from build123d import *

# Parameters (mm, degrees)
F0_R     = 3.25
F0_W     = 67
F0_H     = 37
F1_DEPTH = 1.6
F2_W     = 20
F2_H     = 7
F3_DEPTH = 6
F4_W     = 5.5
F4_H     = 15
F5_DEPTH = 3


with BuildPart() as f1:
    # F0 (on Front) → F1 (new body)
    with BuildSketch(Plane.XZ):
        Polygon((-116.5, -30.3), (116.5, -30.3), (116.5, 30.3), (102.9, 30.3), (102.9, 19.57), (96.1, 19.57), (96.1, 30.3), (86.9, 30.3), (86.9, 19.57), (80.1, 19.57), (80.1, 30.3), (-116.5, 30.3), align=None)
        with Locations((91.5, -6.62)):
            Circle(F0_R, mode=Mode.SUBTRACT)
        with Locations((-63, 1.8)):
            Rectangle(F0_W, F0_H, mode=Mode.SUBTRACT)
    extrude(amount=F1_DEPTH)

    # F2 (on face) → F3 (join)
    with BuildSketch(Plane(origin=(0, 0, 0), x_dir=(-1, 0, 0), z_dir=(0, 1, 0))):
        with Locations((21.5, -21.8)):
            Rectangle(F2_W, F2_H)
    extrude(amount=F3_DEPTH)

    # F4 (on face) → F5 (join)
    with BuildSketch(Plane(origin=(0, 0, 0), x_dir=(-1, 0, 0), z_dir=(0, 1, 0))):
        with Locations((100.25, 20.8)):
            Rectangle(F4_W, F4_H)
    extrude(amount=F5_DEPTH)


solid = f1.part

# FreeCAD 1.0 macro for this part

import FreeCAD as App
import Part
import Sketcher
from FreeCAD import Vector
Q = App.Units.Quantity


def add_polygon(sketch, points):
    """Adds a closed chain of lines whose ends are joined by coincident constraints."""
    first, n = sketch.GeometryCount, len(points)
    for a, b in zip(points, points[1:] + points[:1]):
        sketch.addGeometry(Part.LineSegment(App.Vector(*a, 0), App.Vector(*b, 0)), False)
    for i in range(n):
        sketch.addConstraint(Sketcher.Constraint("Coincident", first + i, 2, first + (i + 1) % n, 1))

doc = App.newDocument("Part")
body = doc.addObject("PartDesign::Body", "Body")

sketch1 = body.newObject("Sketcher::SketchObject", "Sketch")
sketch1.AttachmentSupport = (doc.getObject("XZ_Plane"), [""])
sketch1.MapMode = "FlatFace"
add_polygon(sketch1, [(-116.5, -30.3), (116.5, -30.3), (116.5, 30.3), (102.9, 30.3), (102.9, 19.57), (96.1, 19.57), (96.1, 30.3), (86.9, 30.3), (86.9, 19.57), (80.1, 19.57), (80.1, 30.3), (-116.5, 30.3)])
sketch1.addGeometry(Part.Circle(Vector(91.5, -6.62, 0), Vector(0, 0, 1), 3.25), False)
add_polygon(sketch1, [(-29.5, -16.7), (-96.5, -16.7), (-96.5, 20.3), (-29.5, 20.3)])
sketch1.addConstraint([
    Sketcher.Constraint("Horizontal", 0),
    Sketcher.Constraint("Vertical", 1),
    Sketcher.Constraint("Horizontal", 2),
    Sketcher.Constraint("Vertical", 3),
    Sketcher.Constraint("Horizontal", 4),
    Sketcher.Constraint("Vertical", 5),
    Sketcher.Constraint("Horizontal", 6),
    Sketcher.Constraint("Vertical", 7),
    Sketcher.Constraint("Horizontal", 8),
    Sketcher.Constraint("Vertical", 9),
    Sketcher.Constraint("Horizontal", 10),
    Sketcher.Constraint("Vertical", 11),
    Sketcher.Constraint("Horizontal", 13),
    Sketcher.Constraint("Vertical", 14),
    Sketcher.Constraint("Horizontal", 15),
    Sketcher.Constraint("Vertical", 16),
    Sketcher.Constraint("Symmetric", 0, 2, 10, 2, -1, 1),
    Sketcher.Constraint("Horizontal", 2, 2, 5, 2),
    Sketcher.Constraint("Horizontal", 4, 2, 7, 2),
    Sketcher.Constraint("Horizontal", 6, 2, 9, 2),
    Sketcher.Constraint("Equal", 4, 8),
    Sketcher.Constraint("Diameter", 12, Q("6.5 mm")),
    Sketcher.Constraint("DistanceX", 0, 1, 0, 2, Q("233 mm")),
    Sketcher.Constraint("DistanceX", 13, 2, 13, 1, Q("67 mm")),
    Sketcher.Constraint("DistanceY", 14, 1, 14, 2, Q("37 mm")),
    Sketcher.Constraint("DistanceX", 2, 2, 2, 1, Q("13.6 mm")),
    Sketcher.Constraint("DistanceX", 4, 2, 4, 1, Q("6.8 mm")),
    Sketcher.Constraint("DistanceX", 6, 2, 6, 1, Q("9.2 mm")),
    Sketcher.Constraint("DistanceY", 1, 1, 1, 2, Q("60.6 mm")),
    Sketcher.Constraint("DistanceX", 12, 3, 0, 2, Q("25 mm")),
    Sketcher.Constraint("DistanceX", 11, 2, 13, 2, Q("20 mm")),
    Sketcher.Constraint("DistanceY", 13, 2, 10, 2, Q("47 mm")),
    Sketcher.Constraint("DistanceY", 3, 2, 3, 1, Q("10.73 mm")),
    Sketcher.Constraint("DistanceY", 12, 3, -1, 1, Q("6.62 mm")),
])
pad1 = body.newObject("PartDesign::Pad", "Pad")
pad1.Profile = sketch1
pad1.Length = 1.6

sketch2 = body.newObject("Sketcher::SketchObject", "Sketch001")
sketch2.AttachmentSupport = (doc.getObject("XZ_Plane"), [""])
sketch2.MapMode = "FlatFace"
add_polygon(sketch2, [(-11.5, -18.3), (-11.5, -25.3), (-31.5, -25.3), (-31.5, -18.3)])
sketch2.addConstraint([
    Sketcher.Constraint("Vertical", 0),
    Sketcher.Constraint("Horizontal", 1),
    Sketcher.Constraint("Vertical", 2),
    Sketcher.Constraint("Horizontal", 3),
    Sketcher.Constraint("DistanceX", 1, 2, 1, 1, Q("20 mm")),
    Sketcher.Constraint("DistanceY", 0, 2, 0, 1, Q("7 mm")),
    Sketcher.Constraint("DistanceX", 0, 2, -1, 1, Q("11.5 mm")),
    Sketcher.Constraint("DistanceY", 0, 2, -1, 1, Q("25.3 mm")),
])
pad2 = body.newObject("PartDesign::Pad", "Pad001")
pad2.Profile = sketch2
pad2.Length = 6
pad2.Reversed = True

sketch3 = body.newObject("Sketcher::SketchObject", "Sketch002")
sketch3.AttachmentSupport = (doc.getObject("XZ_Plane"), [""])
sketch3.MapMode = "FlatFace"
add_polygon(sketch3, [(-97.5, 28.3), (-97.5, 13.3), (-103, 13.3), (-103, 28.3)])
sketch3.addConstraint([
    Sketcher.Constraint("Vertical", 0),
    Sketcher.Constraint("Horizontal", 1),
    Sketcher.Constraint("Vertical", 2),
    Sketcher.Constraint("Horizontal", 3),
    Sketcher.Constraint("DistanceY", 0, 2, 0, 1, Q("15 mm")),
    Sketcher.Constraint("DistanceX", 1, 2, 1, 1, Q("5.5 mm")),
    Sketcher.Constraint("DistanceX", 1, 2, -1, 1, Q("103 mm")),
    Sketcher.Constraint("DistanceY", -1, 1, 0, 2, Q("13.3 mm")),
])
pad3 = body.newObject("PartDesign::Pad", "Pad002")
pad3.Profile = sketch3
pad3.Length = 3
pad3.Reversed = True

doc.recompute()
